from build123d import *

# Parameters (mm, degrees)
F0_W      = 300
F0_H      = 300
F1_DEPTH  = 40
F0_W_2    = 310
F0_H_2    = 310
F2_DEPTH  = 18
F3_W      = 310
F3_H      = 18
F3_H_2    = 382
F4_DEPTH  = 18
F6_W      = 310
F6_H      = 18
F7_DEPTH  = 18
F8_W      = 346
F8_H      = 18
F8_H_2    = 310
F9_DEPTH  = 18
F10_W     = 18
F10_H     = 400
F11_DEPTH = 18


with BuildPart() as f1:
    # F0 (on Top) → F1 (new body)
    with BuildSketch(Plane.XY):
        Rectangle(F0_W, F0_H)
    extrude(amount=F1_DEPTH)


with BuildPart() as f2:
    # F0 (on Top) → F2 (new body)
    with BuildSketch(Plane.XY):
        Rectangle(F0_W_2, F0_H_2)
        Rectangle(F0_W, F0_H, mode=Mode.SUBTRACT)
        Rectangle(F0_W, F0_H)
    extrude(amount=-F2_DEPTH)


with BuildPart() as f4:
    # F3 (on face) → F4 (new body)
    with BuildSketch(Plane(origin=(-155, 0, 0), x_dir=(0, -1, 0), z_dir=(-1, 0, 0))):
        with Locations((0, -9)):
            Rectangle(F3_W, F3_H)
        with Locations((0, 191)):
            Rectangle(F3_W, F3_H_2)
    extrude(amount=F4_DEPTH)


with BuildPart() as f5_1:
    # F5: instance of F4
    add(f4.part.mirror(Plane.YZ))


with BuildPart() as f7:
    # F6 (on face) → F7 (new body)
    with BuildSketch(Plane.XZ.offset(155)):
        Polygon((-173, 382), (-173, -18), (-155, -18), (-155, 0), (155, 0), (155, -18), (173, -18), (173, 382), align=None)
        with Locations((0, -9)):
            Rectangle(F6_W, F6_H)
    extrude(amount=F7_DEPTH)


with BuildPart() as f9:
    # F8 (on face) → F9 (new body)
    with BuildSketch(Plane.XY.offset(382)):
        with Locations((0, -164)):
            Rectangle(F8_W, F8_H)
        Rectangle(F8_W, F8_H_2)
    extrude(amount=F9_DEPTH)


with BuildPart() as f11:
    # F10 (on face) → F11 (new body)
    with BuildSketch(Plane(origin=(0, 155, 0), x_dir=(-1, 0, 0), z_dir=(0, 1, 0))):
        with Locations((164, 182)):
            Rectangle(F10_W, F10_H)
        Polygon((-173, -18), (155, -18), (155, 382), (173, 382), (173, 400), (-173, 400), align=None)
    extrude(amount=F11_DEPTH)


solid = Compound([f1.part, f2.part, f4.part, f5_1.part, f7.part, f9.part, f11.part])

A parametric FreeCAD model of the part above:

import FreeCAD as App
import Part
import Sketcher

doc = App.newDocument("Part")
body = doc.addObject("PartDesign::Body", "Body")

# Sketch on XY plane
sketch1 = body.newObject("Sketcher::SketchObject", "Sketch")
sketch1.AttachmentSupport = (doc.getObject("XY_Plane"), [""])
sketch1.MapMode = "FlatFace"
sketch1.addGeometry([
    Part.LineSegment(App.Vector(-150, 150, 0), App.Vector(-150, -150, 0)),
    Part.LineSegment(App.Vector(-150, -150, 0), App.Vector(150, -150, 0)),
    Part.LineSegment(App.Vector(150, -150, 0), App.Vector(150, 150, 0)),
    Part.LineSegment(App.Vector(150, 150, 0), App.Vector(-150, 150, 0)),
], False)
sketch1.addConstraint([
    Sketcher.Constraint("Coincident", 0, 2, 1, 1),
    Sketcher.Constraint("Coincident", 1, 2, 2, 1),
    Sketcher.Constraint("Coincident", 2, 2, 3, 1),
    Sketcher.Constraint("Coincident", 3, 2, 0, 1),
    Sketcher.Constraint("Vertical", 0),
    Sketcher.Constraint("Horizontal", 1),
    Sketcher.Constraint("Vertical", 2),
    Sketcher.Constraint("Horizontal", 3),
    Sketcher.Constraint("Symmetric", 0, 2, 2, 2, -1, 1),
    Sketcher.Constraint("Equal", 3, 0),
    Sketcher.Constraint("DistanceX", 1, 1, 1, 2, 300.0),
])
pad1 = body.newObject("PartDesign::Pad", "Pad")
pad1.Profile = sketch1
pad1.Length = 40
body2 = doc.addObject("PartDesign::Body", "Body001")

# Sketch on XY plane
sketch2 = body2.newObject("Sketcher::SketchObject", "Sketch001")
sketch2.AttachmentSupport = (doc.getObject("XY_Plane001"), [""])
sketch2.MapMode = "FlatFace"
sketch2.addGeometry([
    Part.LineSegment(App.Vector(-155, 155, 0), App.Vector(-155, -155, 0)),
    Part.LineSegment(App.Vector(-155, -155, 0), App.Vector(155, -155, 0)),
    Part.LineSegment(App.Vector(155, -155, 0), App.Vector(155, 155, 0)),
    Part.LineSegment(App.Vector(155, 155, 0), App.Vector(-155, 155, 0)),
], False)
sketch2.addConstraint([
    Sketcher.Constraint("Coincident", 0, 2, 1, 1),
    Sketcher.Constraint("Coincident", 1, 2, 2, 1),
    Sketcher.Constraint("Coincident", 2, 2, 3, 1),
    Sketcher.Constraint("Coincident", 3, 2, 0, 1),
    Sketcher.Constraint("Vertical", 0),
    Sketcher.Constraint("Horizontal", 1),
    Sketcher.Constraint("Vertical", 2),
    Sketcher.Constraint("Horizontal", 3),
    Sketcher.Constraint("Symmetric", 0, 2, 2, 2, -1, 1),
    Sketcher.Constraint("Equal", 3, 0),
    Sketcher.Constraint("DistanceX", 1, 1, 1, 2, 310.0),
])
pad2 = body2.newObject("PartDesign::Pad", "Pad001")
pad2.Profile = sketch2
pad2.Length = 18
pad2.Reversed = True
body3 = doc.addObject("PartDesign::Body", "Body002")

# Sketch on YZ plane
sketch3 = body3.newObject("Sketcher::SketchObject", "Sketch002")
sketch3.AttachmentSupport = (doc.getObject("YZ_Plane002"), [""])
sketch3.MapMode = "FlatFace"
sketch3.AttachmentOffset = App.Placement(App.Vector(0, 0, -155), App.Rotation())
sketch3.addGeometry([
    Part.LineSegment(App.Vector(155, -18, 0), App.Vector(-155, -18, 0)),
    Part.LineSegment(App.Vector(-155, -18, 0), App.Vector(-155, 382, 0)),
    Part.LineSegment(App.Vector(-155, 382, 0), App.Vector(155, 382, 0)),
    Part.LineSegment(App.Vector(155, 382, 0), App.Vector(155, -18, 0)),
], False)
sketch3.addConstraint([
    Sketcher.Constraint("Coincident", 0, 2, 1, 1),
    Sketcher.Constraint("Coincident", 1, 2, 2, 1),
    Sketcher.Constraint("Coincident", 2, 2, 3, 1),
    Sketcher.Constraint("Coincident", 3, 2, 0, 1),
    Sketcher.Constraint("Horizontal", 0),
    Sketcher.Constraint("Vertical", 1),
    Sketcher.Constraint("Horizontal", 2),
    Sketcher.Constraint("Vertical", 3),
    Sketcher.Constraint("DistanceX", 0, 2, 0, 1, 310.0),
    Sketcher.Constraint("DistanceY", 1, 1, 1, 2, 400.0),
    Sketcher.Constraint("DistanceX", 0, 2, -1, 1, 155.0),
    Sketcher.Constraint("DistanceY", 0, 2, -1, 1, 18.0),
])
pad3 = body3.newObject("PartDesign::Pad", "Pad002")
pad3.Profile = sketch3
pad3.Length = 18
pad3.Reversed = True
body4 = doc.addObject("PartDesign::Body", "Body003")
doc.recompute()

mirroring = doc.addObject("Part::Mirroring", "Mirroring")
mirroring.Source = body3
mirroring.Base = App.Vector(0, 0, 0)
mirroring.Normal = App.Vector(1, 0, 0)
body4.BaseFeature = mirroring
doc.recompute()
body5 = doc.addObject("PartDesign::Body", "Body004")

# Sketch on XZ plane
sketch4 = body5.newObject("Sketcher::SketchObject", "Sketch003")
sketch4.AttachmentSupport = (doc.getObject("XZ_Plane004"), [""])
sketch4.MapMode = "FlatFace"
sketch4.AttachmentOffset = App.Placement(App.Vector(0, 0, 155), App.Rotation())
sketch4.addGeometry([
    Part.LineSegment(App.Vector(-173, 382, 0), App.Vector(-173, -18, 0)),
    Part.LineSegment(App.Vector(-173, -18, 0), App.Vector(173, -18, 0)),
    Part.LineSegment(App.Vector(173, -18, 0), App.Vector(173, 382, 0)),
    Part.LineSegment(App.Vector(173, 382, 0), App.Vector(-173, 382, 0)),
], False)
sketch4.addConstraint([
    Sketcher.Constraint("Coincident", 0, 2, 1, 1),
    Sketcher.Constraint("Coincident", 1, 2, 2, 1),
    Sketcher.Constraint("Coincident", 2, 2, 3, 1),
    Sketcher.Constraint("Coincident", 3, 2, 0, 1),
    Sketcher.Constraint("Vertical", 0),
    Sketcher.Constraint("Horizontal", 1),
    Sketcher.Constraint("Vertical", 2),
    Sketcher.Constraint("Horizontal", 3),
    Sketcher.Constraint("DistanceX", 1, 1, 1, 2, 346.0),
    Sketcher.Constraint("DistanceY", 0, 2, 0, 1, 400.0),
    Sketcher.Constraint("DistanceX", 0, 2, -1, 1, 173.0),
    Sketcher.Constraint("DistanceY", 0, 2, -1, 1, 18.0),
])
pad4 = body5.newObject("PartDesign::Pad", "Pad003")
pad4.Profile = sketch4
pad4.Length = 18
body6 = doc.addObject("PartDesign::Body", "Body005")

# Sketch on XY plane
sketch5 = body6.newObject("Sketcher::SketchObject", "Sketch004")
sketch5.AttachmentSupport = (doc.getObject("XY_Plane005"), [""])
sketch5.MapMode = "FlatFace"
sketch5.AttachmentOffset = App.Placement(App.Vector(0, 0, 382), App.Rotation())
sketch5.addGeometry([
    Part.LineSegment(App.Vector(-173, -173, 0), App.Vector(173, -173, 0)),
    Part.LineSegment(App.Vector(173, -173, 0), App.Vector(173, 155, 0)),
    Part.LineSegment(App.Vector(173, 155, 0), App.Vector(-173, 155, 0)),
    Part.LineSegment(App.Vector(-173, 155, 0), App.Vector(-173, -173, 0)),
], False)
sketch5.addConstraint([
    Sketcher.Constraint("Coincident", 0, 2, 1, 1),
    Sketcher.Constraint("Coincident", 1, 2, 2, 1),
    Sketcher.Constraint("Coincident", 2, 2, 3, 1),
    Sketcher.Constraint("Coincident", 3, 2, 0, 1),
    Sketcher.Constraint("Horizontal", 0),
    Sketcher.Constraint("Vertical", 1),
    Sketcher.Constraint("Horizontal", 2),
    Sketcher.Constraint("Vertical", 3),
    Sketcher.Constraint("DistanceX", 0, 1, 0, 2, 346.0),
    Sketcher.Constraint("DistanceY", 1, 1, 1, 2, 328.0),
    Sketcher.Constraint("DistanceX", -1, 1, 0, 2, 173.0),
    Sketcher.Constraint("DistanceY", 0, 2, -1, 1, 173.0),
])
pad5 = body6.newObject("PartDesign::Pad", "Pad004")
pad5.Profile = sketch5
pad5.Length = 18
body7 = doc.addObject("PartDesign::Body", "Body006")

# Sketch on XZ plane
sketch6 = body7.newObject("Sketcher::SketchObject", "Sketch005")
sketch6.AttachmentSupport = (doc.getObject("XZ_Plane006"), [""])
sketch6.MapMode = "FlatFace"
sketch6.AttachmentOffset = App.Placement(App.Vector(0, 0, -155), App.Rotation())
sketch6.addGeometry([
    Part.LineSegment(App.Vector(-173, -18, 0), App.Vector(-173, 400, 0)),
    Part.LineSegment(App.Vector(-173, 400, 0), App.Vector(173, 400, 0)),
    Part.LineSegment(App.Vector(173, 400, 0), App.Vector(173, -18, 0)),
    Part.LineSegment(App.Vector(173, -18, 0), App.Vector(-173, -18, 0)),
], False)
sketch6.addConstraint([
    Sketcher.Constraint("Coincident", 0, 2, 1, 1),
    Sketcher.Constraint("Coincident", 1, 2, 2, 1),
    Sketcher.Constraint("Coincident", 2, 2, 3, 1),
    Sketcher.Constraint("Coincident", 3, 2, 0, 1),
    Sketcher.Constraint("Vertical", 0),
    Sketcher.Constraint("Horizontal", 1),
    Sketcher.Constraint("Vertical", 2),
    Sketcher.Constraint("Horizontal", 3),
    Sketcher.Constraint("DistanceX", 1, 1, 1, 2, 346.0),
    Sketcher.Constraint("DistanceY", 0, 1, 0, 2, 418.0),
    Sketcher.Constraint("DistanceX", 0, 2, -1, 1, 173.0),
    Sketcher.Constraint("DistanceY", -1, 1, 0, 2, 400.0),
])
pad6 = body7.newObject("PartDesign::Pad", "Pad005")
pad6.Profile = sketch6
pad6.Length = 18
pad6.Reversed = True
mirroring.Visibility = False

doc.recompute()
